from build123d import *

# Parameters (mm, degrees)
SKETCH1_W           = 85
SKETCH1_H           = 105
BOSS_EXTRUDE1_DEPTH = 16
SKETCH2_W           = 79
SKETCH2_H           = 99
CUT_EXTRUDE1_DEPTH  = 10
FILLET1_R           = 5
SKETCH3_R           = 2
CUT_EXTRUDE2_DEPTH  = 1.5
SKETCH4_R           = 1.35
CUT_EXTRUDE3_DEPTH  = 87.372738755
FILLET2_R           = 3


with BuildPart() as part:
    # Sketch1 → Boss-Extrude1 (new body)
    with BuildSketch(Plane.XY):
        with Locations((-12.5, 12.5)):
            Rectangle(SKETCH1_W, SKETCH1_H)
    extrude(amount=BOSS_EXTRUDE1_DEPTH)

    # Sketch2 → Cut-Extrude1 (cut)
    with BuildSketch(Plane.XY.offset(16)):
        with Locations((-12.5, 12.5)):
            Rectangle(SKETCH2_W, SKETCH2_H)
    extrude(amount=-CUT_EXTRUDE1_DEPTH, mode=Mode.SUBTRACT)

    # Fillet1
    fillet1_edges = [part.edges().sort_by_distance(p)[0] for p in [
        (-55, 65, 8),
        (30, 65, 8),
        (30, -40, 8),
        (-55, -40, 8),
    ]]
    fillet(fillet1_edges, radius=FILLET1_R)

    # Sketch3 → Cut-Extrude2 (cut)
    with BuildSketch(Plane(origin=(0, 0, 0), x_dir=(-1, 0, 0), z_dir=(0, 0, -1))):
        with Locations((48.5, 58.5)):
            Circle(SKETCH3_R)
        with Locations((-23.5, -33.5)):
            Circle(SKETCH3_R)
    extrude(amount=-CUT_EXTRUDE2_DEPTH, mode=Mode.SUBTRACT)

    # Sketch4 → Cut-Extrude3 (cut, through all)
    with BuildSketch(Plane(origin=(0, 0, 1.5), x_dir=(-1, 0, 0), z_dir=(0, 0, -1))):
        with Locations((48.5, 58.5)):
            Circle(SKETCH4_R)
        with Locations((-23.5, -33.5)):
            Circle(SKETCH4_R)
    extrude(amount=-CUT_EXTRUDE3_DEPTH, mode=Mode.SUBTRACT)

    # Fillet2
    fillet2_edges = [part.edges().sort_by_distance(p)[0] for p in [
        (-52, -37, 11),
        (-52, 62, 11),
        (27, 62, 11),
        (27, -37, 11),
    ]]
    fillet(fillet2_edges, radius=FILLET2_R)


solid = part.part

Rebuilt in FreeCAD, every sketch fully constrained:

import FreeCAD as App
import Part
import Sketcher
Q = App.Units.Quantity


def edges_at(feature, points):
    """Names of the edges that pass closest to the given points."""
    edges = feature.Shape.Edges
    near = lambda p: min(range(len(edges)), key=lambda i: edges[i].distToShape(Part.Vertex(*p))[0])
    return sorted({f"Edge{near(p) + 1}" for p in points})

doc = App.newDocument("Part")
params = doc.addObject("Spreadsheet::Sheet", "Params")
for row, (alias, value) in enumerate([
    ("sketch1_width", "85 mm"),
    ("sketch1_height", "105 mm"),
    ("pad1_length", "16 mm"),
    ("sketch2_width", "79 mm"),
    ("sketch2_height", "99 mm"),
    ("pocket1_length", "10 mm"),
    ("fillet_radius", "5 mm"),
    ("sketch3_diameter", "4 mm"),
    ("pocket2_length", "1.5 mm"),
    ("sketch4_diameter", "2.7 mm"),
    ("fillet2_radius", "3 mm"),
], start=1):
    params.set(f"A{row}", alias)
    params.set(f"B{row}", "=" + value)
    params.setAlias(f"B{row}", alias)

body = doc.addObject("PartDesign::Body", "Body")

sketch1 = doc.addObject("Sketcher::SketchObject", "Sketch")
body.addObject(sketch1)
sketch1.AttachmentSupport = (doc.XY_Plane, [""])
sketch1.MapMode = "FlatFace"
sketch1.addGeometry([
    Part.LineSegment(App.Vector(-55, 65, 0), App.Vector(-55, -40, 0)),
    Part.LineSegment(App.Vector(-55, -40, 0), App.Vector(30, -40, 0)),
    Part.LineSegment(App.Vector(30, -40, 0), App.Vector(30, 65, 0)),
    Part.LineSegment(App.Vector(30, 65, 0), App.Vector(-55, 65, 0)),
], False)
sketch1.addConstraint([
    Sketcher.Constraint("Coincident", 0, 2, 1, 1),
    Sketcher.Constraint("Coincident", 1, 2, 2, 1),
    Sketcher.Constraint("Coincident", 2, 2, 3, 1),
    Sketcher.Constraint("Coincident", 3, 2, 0, 1),
    Sketcher.Constraint("Vertical", 0),
    Sketcher.Constraint("Horizontal", 1),
    Sketcher.Constraint("Vertical", 2),
    Sketcher.Constraint("Horizontal", 3),
    Sketcher.Constraint("DistanceX", 1, 1, 1, 2, Q("85 mm")),
    Sketcher.Constraint("DistanceY", 0, 2, 0, 1, Q("105 mm")),
    Sketcher.Constraint("DistanceX", 0, 2, -1, 1, Q("55 mm")),
    Sketcher.Constraint("DistanceY", 0, 2, -1, 1, Q("40 mm")),
])
sketch1.setExpression("Constraints[8]", "Params.sketch1_width")
sketch1.setExpression("Constraints[9]", "Params.sketch1_height")
pad1 = doc.addObject("PartDesign::Pad", "Pad")
body.addObject(pad1)
pad1.Profile = sketch1
pad1.setExpression("Length", "Params.pad1_length")

sketch2 = doc.addObject("Sketcher::SketchObject", "Sketch001")
body.addObject(sketch2)
sketch2.AttachmentSupport = (doc.XY_Plane, [""])
sketch2.MapMode = "FlatFace"
sketch2.AttachmentOffset = App.Placement(App.Vector(0, 0, 16), App.Rotation())
sketch2.addGeometry([
    Part.LineSegment(App.Vector(-52, 62, 0), App.Vector(-52, -37, 0)),
    Part.LineSegment(App.Vector(-52, -37, 0), App.Vector(27, -37, 0)),
    Part.LineSegment(App.Vector(27, -37, 0), App.Vector(27, 62, 0)),
    Part.LineSegment(App.Vector(27, 62, 0), App.Vector(-52, 62, 0)),
], False)
sketch2.addConstraint([
    Sketcher.Constraint("Coincident", 0, 2, 1, 1),
    Sketcher.Constraint("Coincident", 1, 2, 2, 1),
    Sketcher.Constraint("Coincident", 2, 2, 3, 1),
    Sketcher.Constraint("Coincident", 3, 2, 0, 1),
    Sketcher.Constraint("Vertical", 0),
    Sketcher.Constraint("Horizontal", 1),
    Sketcher.Constraint("Vertical", 2),
    Sketcher.Constraint("Horizontal", 3),
    Sketcher.Constraint("DistanceX", 1, 1, 1, 2, Q("79 mm")),
    Sketcher.Constraint("DistanceY", 0, 2, 0, 1, Q("99 mm")),
    Sketcher.Constraint("DistanceX", 0, 2, -1, 1, Q("52 mm")),
    Sketcher.Constraint("DistanceY", 0, 2, -1, 1, Q("37 mm")),
])
sketch2.setExpression("Constraints[8]", "Params.sketch2_width")
sketch2.setExpression("Constraints[9]", "Params.sketch2_height")
pocket1 = doc.addObject("PartDesign::Pocket", "Pocket")
body.addObject(pocket1)
pocket1.Profile = sketch2
pocket1.setExpression("Length", "Params.pocket1_length")
doc.recompute()

fillet = doc.addObject("PartDesign::Fillet", "Fillet")
body.addObject(fillet)
fillet.Base = (pocket1, edges_at(pocket1, [
    (-55, 65, 8),
    (30, 65, 8),
    (30, -40, 8),
    (-55, -40, 8),
]))
fillet.setExpression("Radius", "Params.fillet_radius")

sketch3 = doc.addObject("Sketcher::SketchObject", "Sketch002")
body.addObject(sketch3)
sketch3.AttachmentSupport = (doc.XY_Plane, [""])
sketch3.MapMode = "FlatFace"
sketch3.addGeometry([
    Part.Circle(App.Vector(-48.5, 58.5, 0), App.Vector(0, 0, 1), 2),
    Part.Circle(App.Vector(23.5, -33.5, 0), App.Vector(0, 0, 1), 2),
], False)
sketch3.addConstraint([
    Sketcher.Constraint("Equal", 0, 1),
    Sketcher.Constraint("Diameter", 0, Q("4 mm")),
    Sketcher.Constraint("DistanceX", 0, 3, 1, 3, Q("72 mm")),
    Sketcher.Constraint("DistanceY", 1, 3, 0, 3, Q("92 mm")),
    Sketcher.Constraint("DistanceX", 0, 3, -1, 1, Q("48.5 mm")),
    Sketcher.Constraint("DistanceY", -1, 1, 0, 3, Q("58.5 mm")),
])
sketch3.setExpression("Constraints[1]", "Params.sketch3_diameter")
pocket2 = doc.addObject("PartDesign::Pocket", "Pocket001")
body.addObject(pocket2)
pocket2.Profile = sketch3
pocket2.setExpression("Length", "Params.pocket2_length")
pocket2.Reversed = True

sketch4 = doc.addObject("Sketcher::SketchObject", "Sketch003")
body.addObject(sketch4)
sketch4.AttachmentSupport = (doc.XY_Plane, [""])
sketch4.MapMode = "FlatFace"
sketch4.AttachmentOffset = App.Placement(App.Vector(0, 0, 1.5), App.Rotation())
sketch4.addGeometry([
    Part.Circle(App.Vector(-48.5, 58.5, 0), App.Vector(0, 0, 1), 1.4),
    Part.Circle(App.Vector(23.5, -33.5, 0), App.Vector(0, 0, 1), 1.4),
], False)
sketch4.addConstraint([
    Sketcher.Constraint("Equal", 0, 1),
    Sketcher.Constraint("Diameter", 0, Q("2.7 mm")),
    Sketcher.Constraint("DistanceX", 0, 3, 1, 3, Q("72 mm")),
    Sketcher.Constraint("DistanceY", 1, 3, 0, 3, Q("92 mm")),
    Sketcher.Constraint("DistanceX", 0, 3, -1, 1, Q("48.5 mm")),
    Sketcher.Constraint("DistanceY", -1, 1, 0, 3, Q("58.5 mm")),
])
sketch4.setExpression("Constraints[1]", "Params.sketch4_diameter")
pocket3 = doc.addObject("PartDesign::Pocket", "Pocket002")
body.addObject(pocket3)
pocket3.Profile = sketch4
pocket3.Type = "ThroughAll"
pocket3.Reversed = True
doc.recompute()

fillet2 = doc.addObject("PartDesign::Fillet", "Fillet001")
body.addObject(fillet2)
fillet2.Base = (pocket3, edges_at(pocket3, [
    (-52, -37, 11),
    (-52, 62, 11),
    (27, 62, 11),
    (27, -37, 11),
]))
fillet2.setExpression("Radius", "Params.fillet2_radius")

doc.recompute()
